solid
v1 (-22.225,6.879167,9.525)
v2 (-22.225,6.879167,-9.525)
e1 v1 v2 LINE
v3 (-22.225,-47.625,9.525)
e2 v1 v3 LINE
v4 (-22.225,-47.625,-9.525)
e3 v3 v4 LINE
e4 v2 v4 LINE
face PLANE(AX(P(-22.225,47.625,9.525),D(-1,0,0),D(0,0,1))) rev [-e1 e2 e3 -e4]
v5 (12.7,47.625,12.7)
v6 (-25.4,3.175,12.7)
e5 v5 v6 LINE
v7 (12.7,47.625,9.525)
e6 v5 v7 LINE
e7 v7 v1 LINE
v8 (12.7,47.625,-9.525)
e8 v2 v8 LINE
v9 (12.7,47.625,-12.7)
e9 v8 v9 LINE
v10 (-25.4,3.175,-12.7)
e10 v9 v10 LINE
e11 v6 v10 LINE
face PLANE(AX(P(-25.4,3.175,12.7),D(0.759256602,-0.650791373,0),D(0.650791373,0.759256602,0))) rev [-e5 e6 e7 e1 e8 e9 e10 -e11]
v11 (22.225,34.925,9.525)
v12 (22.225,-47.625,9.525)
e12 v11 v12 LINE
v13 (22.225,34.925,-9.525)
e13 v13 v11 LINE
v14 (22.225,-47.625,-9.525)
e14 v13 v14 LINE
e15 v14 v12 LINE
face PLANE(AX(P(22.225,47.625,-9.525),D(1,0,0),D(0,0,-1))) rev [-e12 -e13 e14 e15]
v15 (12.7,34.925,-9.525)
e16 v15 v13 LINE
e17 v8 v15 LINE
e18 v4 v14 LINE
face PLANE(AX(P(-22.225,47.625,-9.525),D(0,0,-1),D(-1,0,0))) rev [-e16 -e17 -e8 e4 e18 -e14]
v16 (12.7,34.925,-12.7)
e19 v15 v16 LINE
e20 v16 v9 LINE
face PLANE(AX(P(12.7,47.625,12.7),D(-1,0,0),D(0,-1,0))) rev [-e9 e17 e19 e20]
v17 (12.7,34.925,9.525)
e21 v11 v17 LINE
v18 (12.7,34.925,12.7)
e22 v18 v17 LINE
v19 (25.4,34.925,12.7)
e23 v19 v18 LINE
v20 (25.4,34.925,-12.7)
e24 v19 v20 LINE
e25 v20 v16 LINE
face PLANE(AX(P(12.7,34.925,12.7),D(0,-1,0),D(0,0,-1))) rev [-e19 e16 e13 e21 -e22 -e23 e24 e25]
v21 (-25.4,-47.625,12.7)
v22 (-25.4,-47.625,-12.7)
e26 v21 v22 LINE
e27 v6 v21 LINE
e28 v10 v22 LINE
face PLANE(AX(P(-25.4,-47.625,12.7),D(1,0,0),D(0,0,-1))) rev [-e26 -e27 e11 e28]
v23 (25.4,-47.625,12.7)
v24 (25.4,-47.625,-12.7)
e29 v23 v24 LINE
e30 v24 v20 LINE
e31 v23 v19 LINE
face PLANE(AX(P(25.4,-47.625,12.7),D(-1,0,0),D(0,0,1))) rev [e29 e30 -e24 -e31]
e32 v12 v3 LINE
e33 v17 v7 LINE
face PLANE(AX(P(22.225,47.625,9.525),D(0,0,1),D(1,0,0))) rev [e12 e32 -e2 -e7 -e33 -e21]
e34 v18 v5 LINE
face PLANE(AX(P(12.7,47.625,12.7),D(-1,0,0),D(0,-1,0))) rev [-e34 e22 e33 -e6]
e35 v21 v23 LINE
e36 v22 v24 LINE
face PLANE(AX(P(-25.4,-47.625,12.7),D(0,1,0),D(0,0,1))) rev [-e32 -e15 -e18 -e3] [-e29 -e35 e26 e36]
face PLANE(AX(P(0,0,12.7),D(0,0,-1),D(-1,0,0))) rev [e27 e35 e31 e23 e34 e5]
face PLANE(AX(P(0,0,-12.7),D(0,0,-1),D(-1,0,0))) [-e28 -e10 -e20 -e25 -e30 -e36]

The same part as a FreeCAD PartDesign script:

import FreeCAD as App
import Part
import Sketcher
from FreeCAD import Vector
Q = App.Units.Quantity


def add_polygon(sketch, points):
    """Adds a closed chain of lines whose ends are joined by coincident constraints."""
    first, n = sketch.GeometryCount, len(points)
    for a, b in zip(points, points[1:] + points[:1]):
        sketch.addGeometry(Part.LineSegment(App.Vector(*a, 0), App.Vector(*b, 0)), False)
    for i in range(n):
        sketch.addConstraint(Sketcher.Constraint("Coincident", first + i, 2, first + (i + 1) % n, 1))

doc = App.newDocument("Part")
body = doc.addObject("PartDesign::Body", "Body")

# Sketch on XY plane
sketch1 = body.newObject("Sketcher::SketchObject", "Sketch")
sketch1.AttachmentSupport = (doc.getObject("XY_Plane"), [""])
sketch1.MapMode = "FlatFace"
add_polygon(sketch1, [(-25.4, -47.625), (25.4, -47.625), (25.4, 34.925), (12.7, 34.925), (12.7, 47.625), (-25.4, 3.175)])  # lines 0-5
sketch1.addConstraint([
    Sketcher.Constraint("Horizontal", 0),
    Sketcher.Constraint("Vertical", 1),
    Sketcher.Constraint("Horizontal", 2),
    Sketcher.Constraint("Vertical", 3),
    Sketcher.Constraint("Vertical", 5),
    Sketcher.Constraint("Equal", 2, 3),
    Sketcher.Constraint("Equal", 0, 5),
    Sketcher.Constraint("DistanceX", 0, 1, 0, 2, Q("2 in")),
    Sketcher.Constraint("DistanceX", 2, 2, 2, 1, Q("0.5 in")),
    Sketcher.Constraint("DistanceX", -1, 1, 0, 2, Q("1 in")),
    Sketcher.Constraint("DistanceY", 1, 1, 1, 2, Q("3.25 in")),
    Sketcher.Constraint("DistanceY", 0, 2, -1, 1, Q("1.875 in")),
])
pad1 = body.newObject("PartDesign::Pad", "Pad")
pad1.Profile = sketch1
pad1.Length = Q("1 in")
pad1.Midplane = True

# Sketch on XZ plane
sketch2 = body.newObject("Sketcher::SketchObject", "Sketch001")
sketch2.AttachmentSupport = (doc.getObject("XZ_Plane"), [""])
sketch2.MapMode = "FlatFace"
sketch2.AttachmentOffset = App.Placement(Vector(0, 0, 1.875 * 25.4), App.Rotation())
add_polygon(sketch2, [(-22.225, 9.525), (-22.225, -9.525), (22.225, -9.525), (22.225, 9.525)])  # lines 0-3
sketch2.addConstraint([
    Sketcher.Constraint("Vertical", 0),
    Sketcher.Constraint("Horizontal", 1),
    Sketcher.Constraint("Vertical", 2),
    Sketcher.Constraint("Horizontal", 3),
    Sketcher.Constraint("Symmetric", 0, 2, 2, 2, -1, 1),
    Sketcher.Constraint("DistanceX", 1, 1, 1, 2, Q("1.75 in")),
    Sketcher.Constraint("DistanceY", 0, 2, 0, 1, Q("0.75 in")),
])
pocket1 = body.newObject("PartDesign::Pocket", "Pocket")
pocket1.Profile = sketch2
pocket1.Type = "ThroughAll"

doc.recompute()
